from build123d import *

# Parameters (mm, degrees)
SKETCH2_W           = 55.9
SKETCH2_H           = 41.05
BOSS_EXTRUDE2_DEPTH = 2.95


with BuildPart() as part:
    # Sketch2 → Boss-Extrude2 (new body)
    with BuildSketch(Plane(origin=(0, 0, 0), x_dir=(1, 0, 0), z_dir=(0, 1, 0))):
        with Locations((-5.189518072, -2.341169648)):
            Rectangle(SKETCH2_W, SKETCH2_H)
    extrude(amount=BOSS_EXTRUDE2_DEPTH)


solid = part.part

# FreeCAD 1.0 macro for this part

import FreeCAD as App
import Part
import Sketcher
from FreeCAD import Vector

doc = App.newDocument("Part")
params = doc.addObject("Spreadsheet::Sheet", "Params")
for row, (alias, value) in enumerate([
    ("sketch1_width", "55.9 mm"),
    ("sketch1_height", "41.05 mm"),
    ("pad1_length", "2.95 mm"),
], start=1):
    params.set(f"A{row}", alias)
    params.set(f"B{row}", "=" + value)
    params.setAlias(f"B{row}", alias)

body = doc.addObject("PartDesign::Body", "Body")

# Sketch on XZ plane
sketch1 = doc.addObject("Sketcher::SketchObject", "Sketch")
body.addObject(sketch1)
sketch1.AttachmentSupport = (doc.XZ_Plane, [""])
sketch1.MapMode = "FlatFace"
sketch1.addGeometry([
    Part.LineSegment(Vector(-33.139518, -18.18383, 0), Vector(-33.139518, 22.86617, 0)),
    Part.LineSegment(Vector(-33.139518, 22.86617, 0), Vector(22.760482, 22.86617, 0)),
    Part.LineSegment(Vector(22.760482, 22.86617, 0), Vector(22.760482, -18.18383, 0)),
    Part.LineSegment(Vector(22.760482, -18.18383, 0), Vector(-33.139518, -18.18383, 0)),
], False)
sketch1.addConstraint([
    Sketcher.Constraint("Coincident", 0, 2, 1, 1),
    Sketcher.Constraint("Coincident", 1, 2, 2, 1),
    Sketcher.Constraint("Coincident", 2, 2, 3, 1),
    Sketcher.Constraint("Coincident", 3, 2, 0, 1),
    Sketcher.Constraint("Vertical", 0),
    Sketcher.Constraint("Horizontal", 1),
    Sketcher.Constraint("Vertical", 2),
    Sketcher.Constraint("Horizontal", 3),
    Sketcher.Constraint("DistanceX", 1, 1, 1, 2, 55.9),
    Sketcher.Constraint("DistanceY", 0, 1, 0, 2, 41.05),
    Sketcher.Constraint("DistanceX", 0, 2, -1, 1, 33.139518),
    Sketcher.Constraint("DistanceY", -1, 1, 0, 2, 22.86617),
])
sketch1.setExpression("Constraints[8]", "Params.sketch1_width")
sketch1.setExpression("Constraints[9]", "Params.sketch1_height")
pad1 = doc.addObject("PartDesign::Pad", "Pad")
body.addObject(pad1)
pad1.Profile = sketch1
pad1.setExpression("Length", "Params.pad1_length")
pad1.Reversed = True

doc.recompute()
